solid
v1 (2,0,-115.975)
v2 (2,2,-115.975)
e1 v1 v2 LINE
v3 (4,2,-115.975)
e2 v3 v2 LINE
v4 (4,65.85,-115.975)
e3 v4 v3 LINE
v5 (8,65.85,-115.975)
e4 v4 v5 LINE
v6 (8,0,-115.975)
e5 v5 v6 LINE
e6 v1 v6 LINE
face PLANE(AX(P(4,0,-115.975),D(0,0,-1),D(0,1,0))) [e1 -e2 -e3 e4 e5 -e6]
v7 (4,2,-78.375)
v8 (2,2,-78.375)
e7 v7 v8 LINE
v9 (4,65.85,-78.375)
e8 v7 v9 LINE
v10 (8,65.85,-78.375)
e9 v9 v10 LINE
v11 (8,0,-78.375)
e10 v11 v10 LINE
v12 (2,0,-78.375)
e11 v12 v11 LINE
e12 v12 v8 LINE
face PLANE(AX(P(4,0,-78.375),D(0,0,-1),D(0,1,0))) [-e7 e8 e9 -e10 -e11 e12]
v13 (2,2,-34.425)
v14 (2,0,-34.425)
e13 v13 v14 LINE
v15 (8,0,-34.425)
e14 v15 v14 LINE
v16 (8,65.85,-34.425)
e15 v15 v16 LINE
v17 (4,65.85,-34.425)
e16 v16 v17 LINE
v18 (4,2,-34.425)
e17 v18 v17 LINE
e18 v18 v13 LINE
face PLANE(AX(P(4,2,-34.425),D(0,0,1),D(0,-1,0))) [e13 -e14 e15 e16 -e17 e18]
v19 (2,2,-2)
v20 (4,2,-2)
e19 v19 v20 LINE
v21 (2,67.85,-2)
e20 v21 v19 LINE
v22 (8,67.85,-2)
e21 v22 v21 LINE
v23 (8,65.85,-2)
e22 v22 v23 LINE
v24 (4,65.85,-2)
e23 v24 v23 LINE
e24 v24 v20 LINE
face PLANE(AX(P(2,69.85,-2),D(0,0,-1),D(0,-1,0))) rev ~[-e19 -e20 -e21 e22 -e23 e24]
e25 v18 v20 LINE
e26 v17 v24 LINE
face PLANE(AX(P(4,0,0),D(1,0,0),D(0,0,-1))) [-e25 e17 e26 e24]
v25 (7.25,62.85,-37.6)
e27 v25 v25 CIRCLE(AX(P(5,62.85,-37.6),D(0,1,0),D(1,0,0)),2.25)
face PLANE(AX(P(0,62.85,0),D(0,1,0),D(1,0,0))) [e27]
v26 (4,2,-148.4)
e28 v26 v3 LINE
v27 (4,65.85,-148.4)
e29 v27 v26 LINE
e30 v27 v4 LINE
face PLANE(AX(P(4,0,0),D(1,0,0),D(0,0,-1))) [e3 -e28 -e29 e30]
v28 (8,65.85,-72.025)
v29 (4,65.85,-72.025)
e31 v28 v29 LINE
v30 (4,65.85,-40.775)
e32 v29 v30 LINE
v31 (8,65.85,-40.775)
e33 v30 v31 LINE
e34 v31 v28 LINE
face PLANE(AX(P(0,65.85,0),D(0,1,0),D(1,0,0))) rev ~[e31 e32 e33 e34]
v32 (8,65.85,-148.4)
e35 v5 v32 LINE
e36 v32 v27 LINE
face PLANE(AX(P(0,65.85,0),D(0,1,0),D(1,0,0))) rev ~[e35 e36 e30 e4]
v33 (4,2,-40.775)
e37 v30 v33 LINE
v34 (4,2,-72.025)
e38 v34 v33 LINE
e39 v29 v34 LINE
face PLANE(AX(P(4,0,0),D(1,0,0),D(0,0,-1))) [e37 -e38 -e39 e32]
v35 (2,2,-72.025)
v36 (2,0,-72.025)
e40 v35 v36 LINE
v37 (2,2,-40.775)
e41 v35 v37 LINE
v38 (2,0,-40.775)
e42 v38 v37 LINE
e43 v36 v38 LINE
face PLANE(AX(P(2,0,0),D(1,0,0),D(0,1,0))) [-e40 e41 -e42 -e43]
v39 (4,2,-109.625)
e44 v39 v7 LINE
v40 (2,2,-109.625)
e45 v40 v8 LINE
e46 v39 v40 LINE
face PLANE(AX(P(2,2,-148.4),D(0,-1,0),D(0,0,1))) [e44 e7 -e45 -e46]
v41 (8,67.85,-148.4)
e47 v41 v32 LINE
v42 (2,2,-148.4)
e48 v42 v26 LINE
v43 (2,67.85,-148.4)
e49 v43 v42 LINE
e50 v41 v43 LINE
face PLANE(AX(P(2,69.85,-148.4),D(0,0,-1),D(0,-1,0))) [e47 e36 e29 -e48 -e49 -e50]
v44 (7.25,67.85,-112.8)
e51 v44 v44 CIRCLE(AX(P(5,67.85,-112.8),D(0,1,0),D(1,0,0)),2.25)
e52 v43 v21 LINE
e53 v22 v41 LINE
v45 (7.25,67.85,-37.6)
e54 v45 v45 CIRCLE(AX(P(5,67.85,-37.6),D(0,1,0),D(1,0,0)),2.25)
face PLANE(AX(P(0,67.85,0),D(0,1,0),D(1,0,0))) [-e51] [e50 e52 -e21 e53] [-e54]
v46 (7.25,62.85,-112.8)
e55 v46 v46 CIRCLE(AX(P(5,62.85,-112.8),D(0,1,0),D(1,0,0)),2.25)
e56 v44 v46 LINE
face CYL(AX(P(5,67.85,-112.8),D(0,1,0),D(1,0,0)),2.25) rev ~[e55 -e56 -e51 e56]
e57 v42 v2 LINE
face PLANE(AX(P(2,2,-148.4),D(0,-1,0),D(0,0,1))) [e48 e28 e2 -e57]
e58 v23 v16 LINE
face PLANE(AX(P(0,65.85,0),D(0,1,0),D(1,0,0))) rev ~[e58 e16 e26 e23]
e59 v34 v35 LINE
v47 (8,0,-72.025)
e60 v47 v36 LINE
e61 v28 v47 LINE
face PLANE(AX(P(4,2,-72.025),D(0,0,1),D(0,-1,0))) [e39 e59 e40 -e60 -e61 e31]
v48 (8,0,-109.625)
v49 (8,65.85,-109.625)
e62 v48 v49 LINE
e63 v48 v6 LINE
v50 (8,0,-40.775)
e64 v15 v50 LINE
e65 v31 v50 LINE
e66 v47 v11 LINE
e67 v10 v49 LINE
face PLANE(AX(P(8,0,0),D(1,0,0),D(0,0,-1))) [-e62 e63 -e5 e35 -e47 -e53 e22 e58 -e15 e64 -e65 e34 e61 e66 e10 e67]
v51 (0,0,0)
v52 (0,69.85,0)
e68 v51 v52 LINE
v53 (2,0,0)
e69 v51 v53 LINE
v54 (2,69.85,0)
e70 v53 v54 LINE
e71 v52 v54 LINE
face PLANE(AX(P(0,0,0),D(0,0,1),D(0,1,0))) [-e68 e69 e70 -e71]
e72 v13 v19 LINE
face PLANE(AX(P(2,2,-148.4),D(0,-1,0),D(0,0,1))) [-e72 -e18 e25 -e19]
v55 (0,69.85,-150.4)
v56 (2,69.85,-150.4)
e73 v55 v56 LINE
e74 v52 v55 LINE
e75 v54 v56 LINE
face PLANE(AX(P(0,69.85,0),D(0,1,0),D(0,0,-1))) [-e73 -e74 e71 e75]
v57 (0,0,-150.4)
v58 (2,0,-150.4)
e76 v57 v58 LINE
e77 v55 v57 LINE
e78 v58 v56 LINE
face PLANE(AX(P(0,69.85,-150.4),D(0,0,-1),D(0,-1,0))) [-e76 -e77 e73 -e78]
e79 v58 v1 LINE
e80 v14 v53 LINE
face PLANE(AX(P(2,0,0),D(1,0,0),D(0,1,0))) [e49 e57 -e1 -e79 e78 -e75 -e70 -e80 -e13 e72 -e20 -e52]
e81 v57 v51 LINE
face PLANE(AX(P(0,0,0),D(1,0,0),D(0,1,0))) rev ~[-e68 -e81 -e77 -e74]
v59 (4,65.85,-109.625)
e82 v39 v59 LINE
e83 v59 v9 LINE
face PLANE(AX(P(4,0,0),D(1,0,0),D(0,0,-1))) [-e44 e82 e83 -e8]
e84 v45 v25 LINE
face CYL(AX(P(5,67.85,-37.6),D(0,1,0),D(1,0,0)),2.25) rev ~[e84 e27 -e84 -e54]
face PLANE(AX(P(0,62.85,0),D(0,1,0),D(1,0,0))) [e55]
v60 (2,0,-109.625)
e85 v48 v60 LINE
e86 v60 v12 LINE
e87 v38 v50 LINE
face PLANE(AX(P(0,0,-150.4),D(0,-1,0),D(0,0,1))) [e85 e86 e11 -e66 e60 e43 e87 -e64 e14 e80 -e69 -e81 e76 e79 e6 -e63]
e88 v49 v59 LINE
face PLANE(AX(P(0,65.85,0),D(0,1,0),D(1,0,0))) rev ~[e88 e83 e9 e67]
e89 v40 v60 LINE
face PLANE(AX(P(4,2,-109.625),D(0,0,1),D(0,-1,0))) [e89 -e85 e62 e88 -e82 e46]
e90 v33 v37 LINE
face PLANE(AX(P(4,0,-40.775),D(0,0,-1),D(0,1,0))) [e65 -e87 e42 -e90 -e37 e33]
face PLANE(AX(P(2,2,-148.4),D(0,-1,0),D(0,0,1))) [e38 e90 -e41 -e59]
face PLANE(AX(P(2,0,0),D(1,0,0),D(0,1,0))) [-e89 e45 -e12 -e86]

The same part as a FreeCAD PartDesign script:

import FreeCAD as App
import Part
import Sketcher

V = App.Vector
Q = App.Units.Quantity


def add_polygon(sketch, points):
    """Adds a closed chain of lines whose ends are joined by coincident constraints."""
    first, n = sketch.GeometryCount, len(points)
    for a, b in zip(points, points[1:] + points[:1]):
        sketch.addGeometry(Part.LineSegment(App.Vector(*a, 0), App.Vector(*b, 0)), False)
    for i in range(n):
        sketch.addConstraint(Sketcher.Constraint("Coincident", first + i, 2, first + (i + 1) % n, 1))

doc = App.newDocument("Part")
body = doc.addObject("PartDesign::Body", "Body")

sketch1 = doc.addObject("Sketcher::SketchObject", "Sketch")
body.addObject(sketch1)
sketch1.AttachmentSupport = (doc.YZ_Plane, [""])
sketch1.MapMode = "FlatFace"
add_polygon(sketch1, [(70, 0), (0, 0), (0, -150), (70, -150)])
sketch1.addConstraint([
    Sketcher.Constraint("Horizontal", 0),
    Sketcher.Constraint("Vertical", 1),
    Sketcher.Constraint("Horizontal", 2),
    Sketcher.Constraint("Vertical", 3),
    Sketcher.Constraint("Coincident", 0, 2, -1, 1),
    Sketcher.Constraint("DistanceY", 1, 2, 1, 1, Q("150.4 mm")),
    Sketcher.Constraint("DistanceX", 0, 2, 0, 1, Q("69.85 mm")),
])
pad1 = doc.addObject("PartDesign::Pad", "Pad")
body.addObject(pad1)
pad1.Profile = sketch1
pad1.Length = 2

sketch2 = doc.addObject("Sketcher::SketchObject", "Sketch001")
body.addObject(sketch2)
sketch2.AttachmentSupport = (doc.YZ_Plane, [""])
sketch2.MapMode = "FlatFace"
sketch2.AttachmentOffset = App.Placement(V(0, 0, 2), App.Rotation())
add_polygon(sketch2, [(2, -2), (2, -148), (70, -148), (70, -2)])
sketch2.addConstraint([
    Sketcher.Constraint("Vertical", 0),
    Sketcher.Constraint("Horizontal", 1),
    Sketcher.Constraint("Vertical", 2),
    Sketcher.Constraint("Horizontal", 3),
    Sketcher.Constraint("DistanceX", -1, 1, 0, 2, Q("2 mm")),
    Sketcher.Constraint("DistanceY", 2, 2, -1, 1, Q("2 mm")),
    Sketcher.Constraint("DistanceY", 0, 2, 0, 1, Q("146.4 mm")),
    Sketcher.Constraint("DistanceX", 1, 1, 1, 2, Q("67.85 mm")),
])
pad2 = doc.addObject("PartDesign::Pad", "Pad001")
body.addObject(pad2)
pad2.Profile = sketch2
pad2.Length = 2

sketch3 = doc.addObject("Sketcher::SketchObject", "Sketch002")
body.addObject(sketch3)
sketch3.AttachmentSupport = (doc.YZ_Plane, [""])
sketch3.MapMode = "FlatFace"
sketch3.AttachmentOffset = App.Placement(V(0, 0, 4), App.Rotation())
add_polygon(sketch3, [(0, -110), (0, -116), (70, -116), (70, -110)])
add_polygon(sketch3, [(0, -72), (0, -78), (70, -78), (70, -72)])
add_polygon(sketch3, [(0, -34), (0, -41), (70, -41), (70, -34)])
sketch3.addConstraint([
    Sketcher.Constraint("Vertical", 0),
    Sketcher.Constraint("Horizontal", 1),
    Sketcher.Constraint("Vertical", 2),
    Sketcher.Constraint("Horizontal", 3),
    Sketcher.Constraint("Vertical", 4),
    Sketcher.Constraint("Horizontal", 5),
    Sketcher.Constraint("Vertical", 6),
    Sketcher.Constraint("Horizontal", 7),
    Sketcher.Constraint("Vertical", 8),
    Sketcher.Constraint("Horizontal", 9),
    Sketcher.Constraint("Vertical", 10),
    Sketcher.Constraint("Horizontal", 11),
    Sketcher.Constraint("PointOnObject", 0, 2, -2),
    Sketcher.Constraint("PointOnObject", 4, 2, -2),
    Sketcher.Constraint("PointOnObject", 8, 2, -2),
    Sketcher.Constraint("Vertical", 2, 2, 5, 2),
    Sketcher.Constraint("Vertical", 6, 2, 9, 2),
    Sketcher.Constraint("Equal", 2, 4),
    Sketcher.Constraint("Equal", 6, 8),
    Sketcher.Constraint("DistanceY", 0, 2, 0, 1, Q("6.35 mm")),
    Sketcher.Constraint("DistanceX", 1, 1, 1, 2, Q("69.85 mm")),
    Sketcher.Constraint("DistanceY", 0, 2, 4, 2, Q("37.6 mm")),
    Sketcher.Constraint("DistanceY", 4, 2, 8, 2, Q("37.6 mm")),
    Sketcher.Constraint("DistanceY", 0, 2, -1, 1, Q("115.975 mm")),
])
pad3 = doc.addObject("PartDesign::Pad", "Pad002")
body.addObject(pad3)
pad3.Profile = sketch3
pad3.Length = 4

sketch4 = doc.addObject("Sketcher::SketchObject", "Sketch003")
body.addObject(sketch4)
sketch4.AttachmentSupport = (doc.XZ_Plane, [""])
sketch4.MapMode = "FlatFace"
sketch4.AttachmentOffset = App.Placement(V(0, 0, -69.85), App.Rotation())
add_polygon(sketch4, [(8, -150), (2, -150), (2, 0), (8, 0)])
sketch4.addConstraint([
    Sketcher.Constraint("Horizontal", 0),
    Sketcher.Constraint("Vertical", 1),
    Sketcher.Constraint("Horizontal", 2),
    Sketcher.Constraint("Vertical", 3),
    Sketcher.Constraint("PointOnObject", 1, 2, -1),
    Sketcher.Constraint("DistanceX", 0, 2, 0, 1, Q("6 mm")),
    Sketcher.Constraint("DistanceY", 1, 1, 1, 2, Q("150.4 mm")),
    Sketcher.Constraint("DistanceX", -1, 1, 0, 2, Q("2 mm")),
])
pocket1 = doc.addObject("PartDesign::Pocket", "Pocket")
body.addObject(pocket1)
pocket1.Profile = sketch4
pocket1.Length = 2
pocket1.Reversed = True

sketch5 = doc.addObject("Sketcher::SketchObject", "Sketch004")
body.addObject(sketch5)
sketch5.AttachmentSupport = (doc.XZ_Plane, [""])
sketch5.MapMode = "FlatFace"
sketch5.AttachmentOffset = App.Placement(V(0, 0, -67.85), App.Rotation())
add_polygon(sketch5, [(4, -148.4), (4, -116), (8, -116), (8, -148.4)])
add_polygon(sketch5, [(8, -78.4), (8, -109.6), (4, -109.6), (4, -78.4)])
add_polygon(sketch5, [(8, -40.8), (8, -72), (4, -72), (4, -40.8)])
add_polygon(sketch5, [(4, -34.4), (4, -2), (8, -2), (8, -34.4)])
sketch5.addConstraint([
    Sketcher.Constraint("Vertical", 0),
    Sketcher.Constraint("Horizontal", 1),
    Sketcher.Constraint("Vertical", 2),
    Sketcher.Constraint("Horizontal", 3),
    Sketcher.Constraint("Vertical", 4),
    Sketcher.Constraint("Horizontal", 5),
    Sketcher.Constraint("Vertical", 6),
    Sketcher.Constraint("Horizontal", 7),
    Sketcher.Constraint("Vertical", 8),
    Sketcher.Constraint("Horizontal", 9),
    Sketcher.Constraint("Vertical", 10),
    Sketcher.Constraint("Horizontal", 11),
    Sketcher.Constraint("Vertical", 12),
    Sketcher.Constraint("Horizontal", 13),
    Sketcher.Constraint("Vertical", 14),
    Sketcher.Constraint("Horizontal", 15),
    Sketcher.Constraint("Vertical", 2, 2, 4, 2),
    Sketcher.Constraint("Vertical", 3, 2, 5, 2),
    Sketcher.Constraint("Vertical", 7, 2, 8, 2),
    Sketcher.Constraint("Vertical", 6, 2, 9, 2),
    Sketcher.Constraint("Vertical", 10, 2, 12, 2),
    Sketcher.Constraint("Vertical", 11, 2, 13, 2),
    Sketcher.Constraint("Equal", 6, 8),
    Sketcher.Constraint("Equal", 2, 12),
    Sketcher.Constraint("DistanceX", 1, 1, 1, 2, Q("4 mm")),
    Sketcher.Constraint("DistanceX", -1, 1, 0, 2, Q("4 mm")),
    Sketcher.Constraint("DistanceY", 12, 2, -1, 1, Q("2 mm")),
    Sketcher.Constraint("DistanceY", 4, 2, 4, 1, Q("31.25 mm")),
    Sketcher.Constraint("DistanceY", 2, 2, -1, 1, Q("148.4 mm")),
    Sketcher.Constraint("DistanceY", 0, 2, 6, 2, Q("37.6 mm")),
    Sketcher.Constraint("DistanceY", 4, 2, 8, 2, Q("37.6 mm")),
    Sketcher.Constraint("DistanceY", 8, 2, 14, 2, Q("37.6 mm")),
])
pad4 = doc.addObject("PartDesign::Pad", "Pad003")
body.addObject(pad4)
pad4.Profile = sketch5
pad4.Length = 2

sketch6 = doc.addObject("Sketcher::SketchObject", "Sketch005")
body.addObject(sketch6)
sketch6.AttachmentSupport = (doc.YZ_Plane, [""])
sketch6.MapMode = "FlatFace"
sketch6.AttachmentOffset = App.Placement(V(0, 0, 4), App.Rotation())
add_polygon(sketch6, [(0, -109.6), (2, -109.6), (2, -116), (0, -116)])
add_polygon(sketch6, [(0, -72), (2, -72), (2, -78.4), (0, -78.4)])
add_polygon(sketch6, [(0, -34.4), (2, -34.4), (2, -40.8), (0, -40.8)])
sketch6.addConstraint([
    Sketcher.Constraint("Horizontal", 0),
    Sketcher.Constraint("Vertical", 1),
    Sketcher.Constraint("Horizontal", 2),
    Sketcher.Constraint("Vertical", 3),
    Sketcher.Constraint("Horizontal", 4),
    Sketcher.Constraint("Vertical", 5),
    Sketcher.Constraint("Horizontal", 6),
    Sketcher.Constraint("Vertical", 7),
    Sketcher.Constraint("Horizontal", 8),
    Sketcher.Constraint("Vertical", 9),
    Sketcher.Constraint("Horizontal", 10),
    Sketcher.Constraint("Vertical", 11),
    Sketcher.Constraint("PointOnObject", 2, 2, -2),
    Sketcher.Constraint("PointOnObject", 6, 2, -2),
    Sketcher.Constraint("PointOnObject", 10, 2, -2),
    Sketcher.Constraint("Vertical", 1, 2, 4, 2),
    Sketcher.Constraint("Vertical", 5, 2, 8, 2),
    Sketcher.Constraint("Equal", 3, 5),
    Sketcher.Constraint("Equal", 7, 9),
    Sketcher.Constraint("DistanceX", 0, 1, 0, 2, Q("2 mm")),
    Sketcher.Constraint("DistanceY", 1, 2, 1, 1, Q("6.35 mm")),
    Sketcher.Constraint("DistanceY", 0, 2, 4, 2, Q("37.6 mm")),
    Sketcher.Constraint("DistanceY", 4, 2, 8, 2, Q("37.6 mm")),
    Sketcher.Constraint("DistanceY", 0, 2, -1, 1, Q("109.625 mm")),
])
pad5 = doc.addObject("PartDesign::Pad", "Pad004")
body.addObject(pad5)
pad5.Profile = sketch6
pad5.Length = 2
pad5.Reversed = True

sketch7 = doc.addObject("Sketcher::SketchObject", "Sketch006")
body.addObject(sketch7)
sketch7.AttachmentSupport = (doc.XZ_Plane, [""])
sketch7.MapMode = "FlatFace"
sketch7.AttachmentOffset = App.Placement(V(0, 0, -67.85), App.Rotation())
sketch7.addGeometry([
    Part.Circle(V(5, -37.6, 0), V(0, 0, 1), 2.2),
    Part.Circle(V(5, -112.8, 0), V(0, 0, 1), 2.2),
], False)
sketch7.addConstraint([
    Sketcher.Constraint("Equal", 0, 1),
    Sketcher.Constraint("Vertical", 0, 3, 1, 3),
    Sketcher.Constraint("Diameter", 0, Q("4.5 mm")),
    Sketcher.Constraint("DistanceX", -1, 1, 0, 3, Q("5 mm")),
    Sketcher.Constraint("DistanceY", 0, 3, -1, 1, Q("37.6 mm")),
    Sketcher.Constraint("DistanceY", 1, 3, -1, 1, Q("112.8 mm")),
])
pocket2 = doc.addObject("PartDesign::Pocket", "Pocket001")
body.addObject(pocket2)
pocket2.Profile = sketch7
pocket2.Length = 5
pocket2.Reversed = True

doc.recompute()
